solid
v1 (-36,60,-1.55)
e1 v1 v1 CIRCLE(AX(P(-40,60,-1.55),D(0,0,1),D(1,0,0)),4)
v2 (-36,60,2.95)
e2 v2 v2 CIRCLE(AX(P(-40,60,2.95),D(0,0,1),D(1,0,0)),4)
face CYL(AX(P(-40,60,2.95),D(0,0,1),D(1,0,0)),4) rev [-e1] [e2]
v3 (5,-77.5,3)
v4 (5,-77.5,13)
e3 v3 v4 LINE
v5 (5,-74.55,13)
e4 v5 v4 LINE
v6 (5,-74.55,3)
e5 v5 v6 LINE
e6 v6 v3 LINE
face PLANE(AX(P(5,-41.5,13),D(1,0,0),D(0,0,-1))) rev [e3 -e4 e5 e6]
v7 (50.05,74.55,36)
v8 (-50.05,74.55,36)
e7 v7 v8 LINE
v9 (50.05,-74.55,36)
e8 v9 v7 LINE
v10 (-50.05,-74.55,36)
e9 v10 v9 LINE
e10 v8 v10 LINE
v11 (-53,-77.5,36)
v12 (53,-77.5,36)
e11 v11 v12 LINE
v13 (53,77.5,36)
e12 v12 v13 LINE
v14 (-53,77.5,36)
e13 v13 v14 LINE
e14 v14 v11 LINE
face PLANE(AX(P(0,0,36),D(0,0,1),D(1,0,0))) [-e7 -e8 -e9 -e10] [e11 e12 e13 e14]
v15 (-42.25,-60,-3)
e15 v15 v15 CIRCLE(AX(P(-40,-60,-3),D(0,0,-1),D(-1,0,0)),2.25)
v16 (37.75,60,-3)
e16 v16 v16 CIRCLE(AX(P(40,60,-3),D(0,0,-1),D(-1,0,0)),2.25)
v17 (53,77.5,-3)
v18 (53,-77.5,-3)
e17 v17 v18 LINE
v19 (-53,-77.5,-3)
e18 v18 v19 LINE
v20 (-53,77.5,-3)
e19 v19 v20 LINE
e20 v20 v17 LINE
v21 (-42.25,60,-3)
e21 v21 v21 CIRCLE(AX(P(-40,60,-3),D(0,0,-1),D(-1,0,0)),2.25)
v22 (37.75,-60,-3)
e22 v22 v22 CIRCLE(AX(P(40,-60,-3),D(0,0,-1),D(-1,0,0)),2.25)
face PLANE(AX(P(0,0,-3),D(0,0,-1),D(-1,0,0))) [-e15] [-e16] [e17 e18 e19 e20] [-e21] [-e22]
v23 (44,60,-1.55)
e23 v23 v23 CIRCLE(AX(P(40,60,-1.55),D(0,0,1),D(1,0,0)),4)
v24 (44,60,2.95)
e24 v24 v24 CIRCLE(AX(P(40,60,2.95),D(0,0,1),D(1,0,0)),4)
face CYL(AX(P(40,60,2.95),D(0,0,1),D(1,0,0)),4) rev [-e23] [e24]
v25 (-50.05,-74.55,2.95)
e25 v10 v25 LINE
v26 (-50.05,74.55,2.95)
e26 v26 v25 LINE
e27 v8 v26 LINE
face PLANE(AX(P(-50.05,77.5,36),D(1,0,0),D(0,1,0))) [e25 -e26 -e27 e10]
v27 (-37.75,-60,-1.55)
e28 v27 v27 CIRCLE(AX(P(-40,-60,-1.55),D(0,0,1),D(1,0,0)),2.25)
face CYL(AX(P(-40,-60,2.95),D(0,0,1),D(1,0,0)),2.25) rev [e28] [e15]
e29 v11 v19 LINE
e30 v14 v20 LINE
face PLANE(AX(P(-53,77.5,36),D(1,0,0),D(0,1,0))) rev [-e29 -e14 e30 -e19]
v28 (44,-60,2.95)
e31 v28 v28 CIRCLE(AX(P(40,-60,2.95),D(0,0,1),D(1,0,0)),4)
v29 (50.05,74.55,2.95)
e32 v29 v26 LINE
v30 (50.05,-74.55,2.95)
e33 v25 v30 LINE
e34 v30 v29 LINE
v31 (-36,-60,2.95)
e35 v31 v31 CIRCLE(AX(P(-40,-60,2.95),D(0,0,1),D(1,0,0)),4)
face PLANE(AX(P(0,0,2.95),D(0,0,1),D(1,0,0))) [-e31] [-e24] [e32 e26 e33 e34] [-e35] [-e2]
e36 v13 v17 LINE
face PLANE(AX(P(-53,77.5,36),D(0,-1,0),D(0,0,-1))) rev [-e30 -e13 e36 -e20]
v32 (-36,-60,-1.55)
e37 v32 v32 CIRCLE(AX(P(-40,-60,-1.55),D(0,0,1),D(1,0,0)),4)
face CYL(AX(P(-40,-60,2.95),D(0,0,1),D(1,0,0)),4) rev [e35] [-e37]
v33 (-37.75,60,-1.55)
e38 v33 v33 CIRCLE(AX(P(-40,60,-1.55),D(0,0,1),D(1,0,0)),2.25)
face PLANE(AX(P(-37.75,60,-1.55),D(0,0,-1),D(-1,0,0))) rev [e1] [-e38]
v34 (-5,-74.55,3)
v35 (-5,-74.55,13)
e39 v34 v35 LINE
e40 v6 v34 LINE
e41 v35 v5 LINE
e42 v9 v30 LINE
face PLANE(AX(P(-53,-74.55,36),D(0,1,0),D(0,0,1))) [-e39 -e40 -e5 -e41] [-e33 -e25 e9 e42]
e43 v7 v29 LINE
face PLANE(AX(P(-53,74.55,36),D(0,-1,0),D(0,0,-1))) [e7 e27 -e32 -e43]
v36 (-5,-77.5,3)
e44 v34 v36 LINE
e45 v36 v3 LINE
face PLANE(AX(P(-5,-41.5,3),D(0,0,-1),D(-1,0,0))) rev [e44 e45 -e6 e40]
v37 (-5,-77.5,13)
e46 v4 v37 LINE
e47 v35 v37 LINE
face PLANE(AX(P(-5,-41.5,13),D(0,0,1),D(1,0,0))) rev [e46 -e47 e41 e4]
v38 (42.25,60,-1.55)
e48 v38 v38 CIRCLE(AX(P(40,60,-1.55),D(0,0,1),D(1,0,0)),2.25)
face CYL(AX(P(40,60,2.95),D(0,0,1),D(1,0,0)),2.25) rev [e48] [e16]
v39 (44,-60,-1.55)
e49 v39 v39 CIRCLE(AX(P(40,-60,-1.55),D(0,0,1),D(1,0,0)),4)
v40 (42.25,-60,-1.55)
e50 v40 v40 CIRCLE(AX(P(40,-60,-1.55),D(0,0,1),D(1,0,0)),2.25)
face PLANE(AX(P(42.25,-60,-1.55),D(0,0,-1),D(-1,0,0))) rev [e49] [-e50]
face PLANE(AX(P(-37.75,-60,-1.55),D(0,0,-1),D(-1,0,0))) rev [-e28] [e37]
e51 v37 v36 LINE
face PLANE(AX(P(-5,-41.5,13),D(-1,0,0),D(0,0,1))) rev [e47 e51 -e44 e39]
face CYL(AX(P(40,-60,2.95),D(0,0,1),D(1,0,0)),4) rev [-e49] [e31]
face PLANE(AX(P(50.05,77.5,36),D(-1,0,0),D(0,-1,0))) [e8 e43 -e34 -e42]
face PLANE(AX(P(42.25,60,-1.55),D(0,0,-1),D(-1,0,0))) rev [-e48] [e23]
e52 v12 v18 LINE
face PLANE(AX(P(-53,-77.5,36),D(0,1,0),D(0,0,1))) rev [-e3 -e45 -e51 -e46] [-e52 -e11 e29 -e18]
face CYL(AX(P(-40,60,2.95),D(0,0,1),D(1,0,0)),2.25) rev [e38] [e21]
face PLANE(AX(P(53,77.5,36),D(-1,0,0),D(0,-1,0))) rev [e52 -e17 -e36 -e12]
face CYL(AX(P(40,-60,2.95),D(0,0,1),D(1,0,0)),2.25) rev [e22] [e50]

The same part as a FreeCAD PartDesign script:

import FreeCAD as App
import Part
import Sketcher

V = App.Vector
Q = App.Units.Quantity


def faces_at(feature, points):
    """Names of the faces that lie closest to the given points."""
    faces = feature.Shape.Faces
    near = lambda p: min(range(len(faces)), key=lambda i: faces[i].distToShape(Part.Vertex(*p))[0])
    return sorted({f"Face{near(p) + 1}" for p in points})

doc = App.newDocument("Part")
params = doc.addObject("Spreadsheet::Sheet", "Params")
for row, (alias, value) in enumerate([
    ("sketch1_width", "106 mm"),
    ("sketch1_height", "155 mm"),
    ("pad1_length", "36 mm"),
    ("thickness_wall", "2.95 mm"),
    ("sketch2_width", "10 mm"),
    ("pocket1_length", "36 mm"),
    ("sketch3_width", "106 mm"),
    ("sketch3_height", "155 mm"),
    ("pad2_length", "3 mm"),
    ("sketch4_diameter", "4.5 mm"),
    ("hole_diameter", "4.5 mm"),
    ("hole_depth", "45 mm"),
    ("hole_cbore_diameter", "8 mm"),
    ("hole_cbore_depth", "4.5 mm"),
], start=1):
    params.set(f"A{row}", alias)
    params.set(f"B{row}", "=" + value)
    params.setAlias(f"B{row}", alias)

body = doc.addObject("PartDesign::Body", "Body")

# Sketch on XY plane
sketch1 = body.newObject("Sketcher::SketchObject", "Sketch")
sketch1.AttachmentSupport = (doc.getObject("XY_Plane"), [""])
sketch1.MapMode = "FlatFace"
sketch1.addGeometry(Part.LineSegment(V(-53, 78, 0), V(-53, -78, 0)), False)
sketch1.addGeometry(Part.LineSegment(V(-53, -78, 0), V(53, -78, 0)), False)
sketch1.addGeometry(Part.LineSegment(V(53, -78, 0), V(53, 78, 0)), False)
sketch1.addGeometry(Part.LineSegment(V(53, 78, 0), V(-53, 78, 0)), False)
sketch1.addConstraint(Sketcher.Constraint("Coincident", 0, 2, 1, 1))
sketch1.addConstraint(Sketcher.Constraint("Coincident", 1, 2, 2, 1))
sketch1.addConstraint(Sketcher.Constraint("Coincident", 2, 2, 3, 1))
sketch1.addConstraint(Sketcher.Constraint("Coincident", 3, 2, 0, 1))
sketch1.addConstraint(Sketcher.Constraint("Vertical", 0))
sketch1.addConstraint(Sketcher.Constraint("Horizontal", 1))
sketch1.addConstraint(Sketcher.Constraint("Vertical", 2))
sketch1.addConstraint(Sketcher.Constraint("Horizontal", 3))
sketch1.addConstraint(Sketcher.Constraint("Symmetric", 0, 2, 2, 2, -1, 1))
sketch1.addConstraint(Sketcher.Constraint("DistanceX", 1, 1, 1, 2, Q("106 mm")))
sketch1.addConstraint(Sketcher.Constraint("DistanceY", 0, 2, 0, 1, Q("155 mm")))
sketch1.setExpression("Constraints[9]", "Params.sketch1_width")
sketch1.setExpression("Constraints[10]", "Params.sketch1_height")
pad1 = body.newObject("PartDesign::Pad", "Pad")
pad1.Profile = sketch1
pad1.setExpression("Length", "Params.pad1_length")
doc.recompute()

thickness = body.newObject("PartDesign::Thickness", "Thickness")
thickness.Base = (pad1, faces_at(pad1, [(0, 0, 36)]))
thickness.setExpression("Value", "Params.thickness_wall")
thickness.Reversed = True
thickness.Join = "Intersection"

# Sketch on XZ plane
sketch2 = body.newObject("Sketcher::SketchObject", "Sketch001")
sketch2.AttachmentSupport = (doc.getObject("XZ_Plane"), [""])
sketch2.MapMode = "FlatFace"
sketch2.AttachmentOffset = App.Placement(V(0, 0, 77.5), App.Rotation())
sketch2.addGeometry(Part.LineSegment(V(-5, 13, 0), V(-5, 3, 0)), False)
sketch2.addGeometry(Part.LineSegment(V(-5, 3, 0), V(5, 3, 0)), False)
sketch2.addGeometry(Part.LineSegment(V(5, 3, 0), V(5, 13, 0)), False)
sketch2.addGeometry(Part.LineSegment(V(5, 13, 0), V(-5, 13, 0)), False)
sketch2.addConstraint(Sketcher.Constraint("Coincident", 0, 2, 1, 1))
sketch2.addConstraint(Sketcher.Constraint("Coincident", 1, 2, 2, 1))
sketch2.addConstraint(Sketcher.Constraint("Coincident", 2, 2, 3, 1))
sketch2.addConstraint(Sketcher.Constraint("Coincident", 3, 2, 0, 1))
sketch2.addConstraint(Sketcher.Constraint("Vertical", 0))
sketch2.addConstraint(Sketcher.Constraint("Horizontal", 1))
sketch2.addConstraint(Sketcher.Constraint("Vertical", 2))
sketch2.addConstraint(Sketcher.Constraint("Horizontal", 3))
sketch2.addConstraint(Sketcher.Constraint("Equal", 3, 0))
sketch2.addConstraint(Sketcher.Constraint("DistanceX", 1, 1, 1, 2, Q("10 mm")))
sketch2.addConstraint(Sketcher.Constraint("DistanceX", 0, 2, -1, 1, Q("5 mm")))
sketch2.addConstraint(Sketcher.Constraint("DistanceY", -1, 1, 0, 2, Q("3 mm")))
sketch2.setExpression("Constraints[9]", "Params.sketch2_width")
pocket1 = body.newObject("PartDesign::Pocket", "Pocket")
pocket1.Profile = sketch2
pocket1.setExpression("Length", "Params.pocket1_length")

# Sketch on XY plane
sketch3 = body.newObject("Sketcher::SketchObject", "Sketch002")
sketch3.AttachmentSupport = (doc.getObject("XY_Plane"), [""])
sketch3.MapMode = "FlatFace"
sketch3.addGeometry(Part.LineSegment(V(53, 78, 0), V(53, -78, 0)), False)
sketch3.addGeometry(Part.LineSegment(V(53, -78, 0), V(-53, -78, 0)), False)
sketch3.addGeometry(Part.LineSegment(V(-53, -78, 0), V(-53, 78, 0)), False)
sketch3.addGeometry(Part.LineSegment(V(-53, 78, 0), V(53, 78, 0)), False)
sketch3.addConstraint(Sketcher.Constraint("Coincident", 0, 2, 1, 1))
sketch3.addConstraint(Sketcher.Constraint("Coincident", 1, 2, 2, 1))
sketch3.addConstraint(Sketcher.Constraint("Coincident", 2, 2, 3, 1))
sketch3.addConstraint(Sketcher.Constraint("Coincident", 3, 2, 0, 1))
sketch3.addConstraint(Sketcher.Constraint("Vertical", 0))
sketch3.addConstraint(Sketcher.Constraint("Horizontal", 1))
sketch3.addConstraint(Sketcher.Constraint("Vertical", 2))
sketch3.addConstraint(Sketcher.Constraint("Horizontal", 3))
sketch3.addConstraint(Sketcher.Constraint("Symmetric", 0, 2, 2, 2, -1, 1))
sketch3.addConstraint(Sketcher.Constraint("DistanceX", 1, 2, 1, 1, Q("106 mm")))
sketch3.addConstraint(Sketcher.Constraint("DistanceY", 0, 2, 0, 1, Q("155 mm")))
sketch3.setExpression("Constraints[9]", "Params.sketch3_width")
sketch3.setExpression("Constraints[10]", "Params.sketch3_height")
pad2 = body.newObject("PartDesign::Pad", "Pad001")
pad2.Profile = sketch3
pad2.setExpression("Length", "Params.pad2_length")
pad2.Reversed = True

# Sketch on XY plane
sketch4 = body.newObject("Sketcher::SketchObject", "Sketch003")
sketch4.AttachmentSupport = (doc.getObject("XY_Plane"), [""])
sketch4.MapMode = "FlatFace"
sketch4.AttachmentOffset = App.Placement(V(0, 0, 2.95), App.Rotation())
sketch4.addGeometry(Part.Circle(V(-40, 60, 0), V(0, 0, 1), 2.2), False)
sketch4.addGeometry(Part.Circle(V(40, 60, 0), V(0, 0, 1), 2.2), False)
sketch4.addGeometry(Part.Circle(V(40, -60, 0), V(0, 0, 1), 2.2), False)
sketch4.addGeometry(Part.Circle(V(-40, -60, 0), V(0, 0, 1), 2.2), False)
sketch4.addConstraint(Sketcher.Constraint("Equal", 0, 1))
sketch4.addConstraint(Sketcher.Constraint("Equal", 1, 2))
sketch4.addConstraint(Sketcher.Constraint("Equal", 2, 3))
sketch4.addConstraint(Sketcher.Constraint("Symmetric", 0, 3, 2, 3, -1, 1))
sketch4.addConstraint(Sketcher.Constraint("Symmetric", 1, 3, 3, 3, -1, 1))
sketch4.addConstraint(Sketcher.Constraint("Symmetric", 0, 3, 1, 3, -2))
sketch4.addConstraint(Sketcher.Constraint("Diameter", 0, Q("4.5 mm")))
sketch4.addConstraint(Sketcher.Constraint("DistanceX", 0, 3, -1, 1, Q("40 mm")))
sketch4.addConstraint(Sketcher.Constraint("DistanceY", -1, 1, 0, 3, Q("60 mm")))
sketch4.setExpression("Constraints[6]", "Params.sketch4_diameter")
doc.recompute()
hole = body.newObject("PartDesign::Hole", "Hole")
hole.Profile = sketch4
hole.ThreadType = "None"
hole.setExpression("Diameter", "Params.hole_diameter")
hole.DepthType = "Dimension"
hole.setExpression("Depth", "Params.hole_depth")
hole.DrillPoint = "Angled"
hole.DrillPointAngle = 118
hole.HoleCutType = "Counterbore"
hole.setExpression("HoleCutDiameter", "Params.hole_cbore_diameter")
hole.setExpression("HoleCutDepth", "Params.hole_cbore_depth")

doc.recompute()
